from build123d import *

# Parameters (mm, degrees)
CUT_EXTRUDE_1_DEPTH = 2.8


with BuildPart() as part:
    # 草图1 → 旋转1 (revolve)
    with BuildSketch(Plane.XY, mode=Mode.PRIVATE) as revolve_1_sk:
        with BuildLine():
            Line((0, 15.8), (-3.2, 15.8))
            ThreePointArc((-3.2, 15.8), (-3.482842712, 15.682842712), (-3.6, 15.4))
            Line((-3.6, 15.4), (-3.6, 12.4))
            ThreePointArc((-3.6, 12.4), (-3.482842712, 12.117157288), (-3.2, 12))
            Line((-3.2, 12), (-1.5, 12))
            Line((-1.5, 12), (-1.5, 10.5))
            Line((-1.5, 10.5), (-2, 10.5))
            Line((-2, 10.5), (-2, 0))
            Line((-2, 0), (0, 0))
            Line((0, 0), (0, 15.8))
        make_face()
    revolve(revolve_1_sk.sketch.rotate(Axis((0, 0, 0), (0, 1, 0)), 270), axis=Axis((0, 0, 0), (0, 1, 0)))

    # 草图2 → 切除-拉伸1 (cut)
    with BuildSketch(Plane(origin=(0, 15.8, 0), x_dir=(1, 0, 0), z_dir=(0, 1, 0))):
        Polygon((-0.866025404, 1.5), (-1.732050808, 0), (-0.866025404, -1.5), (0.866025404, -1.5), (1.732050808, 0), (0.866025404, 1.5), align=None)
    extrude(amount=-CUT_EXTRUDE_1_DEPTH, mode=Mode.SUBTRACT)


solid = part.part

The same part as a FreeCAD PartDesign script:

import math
import FreeCAD as App
import Part
import Sketcher

V = App.Vector
Q = App.Units.Quantity

doc = App.newDocument("Part")
body = doc.addObject("PartDesign::Body", "Body")

sketch1 = body.newObject("Sketcher::SketchObject", "Sketch")
sketch1.AttachmentSupport = (doc.getObject("XY_Plane"), [""])
sketch1.MapMode = "FlatFace"
sketch1.addGeometry([
    Part.LineSegment(V(0, 15.8, 0), V(-3.2, 15.8, 0)),
    Part.ArcOfCircle(Part.Circle(V(-3.2, 15.4, 0), V(0, 0, 1), 0.4), math.radians(90), math.radians(180)),
    Part.LineSegment(V(-3.6, 15.4, 0), V(-3.6, 12.4, 0)),
    Part.ArcOfCircle(Part.Circle(V(-3.2, 12.4, 0), V(0, 0, 1), 0.4), math.radians(-180), math.radians(-90)),
    Part.LineSegment(V(-3.2, 12, 0), V(-1.5, 12, 0)),
    Part.LineSegment(V(-1.5, 12, 0), V(-1.5, 10.5, 0)),
    Part.LineSegment(V(-1.5, 10.5, 0), V(-2, 10.5, 0)),
    Part.LineSegment(V(-2, 10.5, 0), V(-2, 0, 0)),
    Part.LineSegment(V(-2, 0, 0), V(0, 0, 0)),
    Part.LineSegment(V(0, 0, 0), V(0, 15.8, 0)),
], False)
sketch1.addConstraint([
    Sketcher.Constraint("Tangent", 0, 2, 1, 1),
    Sketcher.Constraint("Tangent", 1, 2, 2, 1),
    Sketcher.Constraint("Tangent", 2, 2, 3, 1),
    Sketcher.Constraint("Tangent", 3, 2, 4, 1),
    Sketcher.Constraint("Coincident", 4, 2, 5, 1),
    Sketcher.Constraint("Coincident", 5, 2, 6, 1),
    Sketcher.Constraint("Coincident", 6, 2, 7, 1),
    Sketcher.Constraint("Coincident", 7, 2, 8, 1),
    Sketcher.Constraint("Coincident", 8, 2, 9, 1),
    Sketcher.Constraint("Coincident", 9, 2, 0, 1),
    Sketcher.Constraint("Horizontal", 0),
    Sketcher.Constraint("Vertical", 2),
    Sketcher.Constraint("Horizontal", 4),
    Sketcher.Constraint("Vertical", 5),
    Sketcher.Constraint("Horizontal", 6),
    Sketcher.Constraint("Vertical", 7),
    Sketcher.Constraint("Horizontal", 8),
    Sketcher.Constraint("Vertical", 9),
    Sketcher.Constraint("Coincident", 8, 2, -1, 1),
    Sketcher.Constraint("Equal", 1, 3),
    Sketcher.Constraint("Radius", 1, 0.4),
    Sketcher.Constraint("DistanceX", 8, 1, 8, 2, 2.0),
    Sketcher.Constraint("DistanceY", 2, 2, 2, 1, 3.0),
    Sketcher.Constraint("DistanceX", 0, 2, 0, 1, 3.2),
    Sketcher.Constraint("DistanceX", 4, 1, 4, 2, 1.7),
    Sketcher.Constraint("DistanceY", 5, 2, 5, 1, 1.5),
    Sketcher.Constraint("DistanceY", 7, 2, 7, 1, 10.5),
])
revolution = body.newObject("PartDesign::Revolution", "Revolution")
revolution.Profile = sketch1
revolution.ReferenceAxis = (sketch1, ["V_Axis"])
revolution.Angle = 360

sketch2 = body.newObject("Sketcher::SketchObject", "Sketch001")
sketch2.AttachmentSupport = (doc.getObject("XZ_Plane"), [""])
sketch2.MapMode = "FlatFace"
sketch2.AttachmentOffset = App.Placement(V(0, 0, -15.8), App.Rotation())
sketch2.addGeometry([
    Part.LineSegment(V(-0.9, -1.5, 0), V(-1.7, 0, 0)),
    Part.LineSegment(V(-1.7, 0, 0), V(-0.9, 1.5, 0)),
    Part.LineSegment(V(-0.9, 1.5, 0), V(0.9, 1.5, 0)),
    Part.LineSegment(V(0.9, 1.5, 0), V(1.7, 0, 0)),
    Part.LineSegment(V(1.7, 0, 0), V(0.9, -1.5, 0)),
    Part.LineSegment(V(0.9, -1.5, 0), V(-0.9, -1.5, 0)),
], False)
sketch2.addConstraint([
    Sketcher.Constraint("Coincident", 0, 2, 1, 1),
    Sketcher.Constraint("Coincident", 1, 2, 2, 1),
    Sketcher.Constraint("Coincident", 2, 2, 3, 1),
    Sketcher.Constraint("Coincident", 3, 2, 4, 1),
    Sketcher.Constraint("Coincident", 4, 2, 5, 1),
    Sketcher.Constraint("Coincident", 5, 2, 0, 1),
    Sketcher.Constraint("Horizontal", 2),
    Sketcher.Constraint("Horizontal", 5),
    Sketcher.Constraint("Symmetric", 0, 2, 3, 2, -1, 1),
    Sketcher.Constraint("Symmetric", 1, 2, 4, 2, -1, 1),
    Sketcher.Constraint("PointOnObject", 0, 2, -1),
    Sketcher.Constraint("Parallel", 0, 3),
    Sketcher.Constraint("Vertical", 2, 2, 4, 2),
    Sketcher.Constraint("Angle", 0, Q("120 deg")),
    Sketcher.Constraint("DistanceY", 4, 2, 2, 2, 3.0),
    Sketcher.Constraint("DistanceX", 2, 1, 2, 2, 1.732051),
])
pocket1 = body.newObject("PartDesign::Pocket", "Pocket")
pocket1.Profile = sketch2
pocket1.Length = 2.8
pocket1.Reversed = True

doc.recompute()
